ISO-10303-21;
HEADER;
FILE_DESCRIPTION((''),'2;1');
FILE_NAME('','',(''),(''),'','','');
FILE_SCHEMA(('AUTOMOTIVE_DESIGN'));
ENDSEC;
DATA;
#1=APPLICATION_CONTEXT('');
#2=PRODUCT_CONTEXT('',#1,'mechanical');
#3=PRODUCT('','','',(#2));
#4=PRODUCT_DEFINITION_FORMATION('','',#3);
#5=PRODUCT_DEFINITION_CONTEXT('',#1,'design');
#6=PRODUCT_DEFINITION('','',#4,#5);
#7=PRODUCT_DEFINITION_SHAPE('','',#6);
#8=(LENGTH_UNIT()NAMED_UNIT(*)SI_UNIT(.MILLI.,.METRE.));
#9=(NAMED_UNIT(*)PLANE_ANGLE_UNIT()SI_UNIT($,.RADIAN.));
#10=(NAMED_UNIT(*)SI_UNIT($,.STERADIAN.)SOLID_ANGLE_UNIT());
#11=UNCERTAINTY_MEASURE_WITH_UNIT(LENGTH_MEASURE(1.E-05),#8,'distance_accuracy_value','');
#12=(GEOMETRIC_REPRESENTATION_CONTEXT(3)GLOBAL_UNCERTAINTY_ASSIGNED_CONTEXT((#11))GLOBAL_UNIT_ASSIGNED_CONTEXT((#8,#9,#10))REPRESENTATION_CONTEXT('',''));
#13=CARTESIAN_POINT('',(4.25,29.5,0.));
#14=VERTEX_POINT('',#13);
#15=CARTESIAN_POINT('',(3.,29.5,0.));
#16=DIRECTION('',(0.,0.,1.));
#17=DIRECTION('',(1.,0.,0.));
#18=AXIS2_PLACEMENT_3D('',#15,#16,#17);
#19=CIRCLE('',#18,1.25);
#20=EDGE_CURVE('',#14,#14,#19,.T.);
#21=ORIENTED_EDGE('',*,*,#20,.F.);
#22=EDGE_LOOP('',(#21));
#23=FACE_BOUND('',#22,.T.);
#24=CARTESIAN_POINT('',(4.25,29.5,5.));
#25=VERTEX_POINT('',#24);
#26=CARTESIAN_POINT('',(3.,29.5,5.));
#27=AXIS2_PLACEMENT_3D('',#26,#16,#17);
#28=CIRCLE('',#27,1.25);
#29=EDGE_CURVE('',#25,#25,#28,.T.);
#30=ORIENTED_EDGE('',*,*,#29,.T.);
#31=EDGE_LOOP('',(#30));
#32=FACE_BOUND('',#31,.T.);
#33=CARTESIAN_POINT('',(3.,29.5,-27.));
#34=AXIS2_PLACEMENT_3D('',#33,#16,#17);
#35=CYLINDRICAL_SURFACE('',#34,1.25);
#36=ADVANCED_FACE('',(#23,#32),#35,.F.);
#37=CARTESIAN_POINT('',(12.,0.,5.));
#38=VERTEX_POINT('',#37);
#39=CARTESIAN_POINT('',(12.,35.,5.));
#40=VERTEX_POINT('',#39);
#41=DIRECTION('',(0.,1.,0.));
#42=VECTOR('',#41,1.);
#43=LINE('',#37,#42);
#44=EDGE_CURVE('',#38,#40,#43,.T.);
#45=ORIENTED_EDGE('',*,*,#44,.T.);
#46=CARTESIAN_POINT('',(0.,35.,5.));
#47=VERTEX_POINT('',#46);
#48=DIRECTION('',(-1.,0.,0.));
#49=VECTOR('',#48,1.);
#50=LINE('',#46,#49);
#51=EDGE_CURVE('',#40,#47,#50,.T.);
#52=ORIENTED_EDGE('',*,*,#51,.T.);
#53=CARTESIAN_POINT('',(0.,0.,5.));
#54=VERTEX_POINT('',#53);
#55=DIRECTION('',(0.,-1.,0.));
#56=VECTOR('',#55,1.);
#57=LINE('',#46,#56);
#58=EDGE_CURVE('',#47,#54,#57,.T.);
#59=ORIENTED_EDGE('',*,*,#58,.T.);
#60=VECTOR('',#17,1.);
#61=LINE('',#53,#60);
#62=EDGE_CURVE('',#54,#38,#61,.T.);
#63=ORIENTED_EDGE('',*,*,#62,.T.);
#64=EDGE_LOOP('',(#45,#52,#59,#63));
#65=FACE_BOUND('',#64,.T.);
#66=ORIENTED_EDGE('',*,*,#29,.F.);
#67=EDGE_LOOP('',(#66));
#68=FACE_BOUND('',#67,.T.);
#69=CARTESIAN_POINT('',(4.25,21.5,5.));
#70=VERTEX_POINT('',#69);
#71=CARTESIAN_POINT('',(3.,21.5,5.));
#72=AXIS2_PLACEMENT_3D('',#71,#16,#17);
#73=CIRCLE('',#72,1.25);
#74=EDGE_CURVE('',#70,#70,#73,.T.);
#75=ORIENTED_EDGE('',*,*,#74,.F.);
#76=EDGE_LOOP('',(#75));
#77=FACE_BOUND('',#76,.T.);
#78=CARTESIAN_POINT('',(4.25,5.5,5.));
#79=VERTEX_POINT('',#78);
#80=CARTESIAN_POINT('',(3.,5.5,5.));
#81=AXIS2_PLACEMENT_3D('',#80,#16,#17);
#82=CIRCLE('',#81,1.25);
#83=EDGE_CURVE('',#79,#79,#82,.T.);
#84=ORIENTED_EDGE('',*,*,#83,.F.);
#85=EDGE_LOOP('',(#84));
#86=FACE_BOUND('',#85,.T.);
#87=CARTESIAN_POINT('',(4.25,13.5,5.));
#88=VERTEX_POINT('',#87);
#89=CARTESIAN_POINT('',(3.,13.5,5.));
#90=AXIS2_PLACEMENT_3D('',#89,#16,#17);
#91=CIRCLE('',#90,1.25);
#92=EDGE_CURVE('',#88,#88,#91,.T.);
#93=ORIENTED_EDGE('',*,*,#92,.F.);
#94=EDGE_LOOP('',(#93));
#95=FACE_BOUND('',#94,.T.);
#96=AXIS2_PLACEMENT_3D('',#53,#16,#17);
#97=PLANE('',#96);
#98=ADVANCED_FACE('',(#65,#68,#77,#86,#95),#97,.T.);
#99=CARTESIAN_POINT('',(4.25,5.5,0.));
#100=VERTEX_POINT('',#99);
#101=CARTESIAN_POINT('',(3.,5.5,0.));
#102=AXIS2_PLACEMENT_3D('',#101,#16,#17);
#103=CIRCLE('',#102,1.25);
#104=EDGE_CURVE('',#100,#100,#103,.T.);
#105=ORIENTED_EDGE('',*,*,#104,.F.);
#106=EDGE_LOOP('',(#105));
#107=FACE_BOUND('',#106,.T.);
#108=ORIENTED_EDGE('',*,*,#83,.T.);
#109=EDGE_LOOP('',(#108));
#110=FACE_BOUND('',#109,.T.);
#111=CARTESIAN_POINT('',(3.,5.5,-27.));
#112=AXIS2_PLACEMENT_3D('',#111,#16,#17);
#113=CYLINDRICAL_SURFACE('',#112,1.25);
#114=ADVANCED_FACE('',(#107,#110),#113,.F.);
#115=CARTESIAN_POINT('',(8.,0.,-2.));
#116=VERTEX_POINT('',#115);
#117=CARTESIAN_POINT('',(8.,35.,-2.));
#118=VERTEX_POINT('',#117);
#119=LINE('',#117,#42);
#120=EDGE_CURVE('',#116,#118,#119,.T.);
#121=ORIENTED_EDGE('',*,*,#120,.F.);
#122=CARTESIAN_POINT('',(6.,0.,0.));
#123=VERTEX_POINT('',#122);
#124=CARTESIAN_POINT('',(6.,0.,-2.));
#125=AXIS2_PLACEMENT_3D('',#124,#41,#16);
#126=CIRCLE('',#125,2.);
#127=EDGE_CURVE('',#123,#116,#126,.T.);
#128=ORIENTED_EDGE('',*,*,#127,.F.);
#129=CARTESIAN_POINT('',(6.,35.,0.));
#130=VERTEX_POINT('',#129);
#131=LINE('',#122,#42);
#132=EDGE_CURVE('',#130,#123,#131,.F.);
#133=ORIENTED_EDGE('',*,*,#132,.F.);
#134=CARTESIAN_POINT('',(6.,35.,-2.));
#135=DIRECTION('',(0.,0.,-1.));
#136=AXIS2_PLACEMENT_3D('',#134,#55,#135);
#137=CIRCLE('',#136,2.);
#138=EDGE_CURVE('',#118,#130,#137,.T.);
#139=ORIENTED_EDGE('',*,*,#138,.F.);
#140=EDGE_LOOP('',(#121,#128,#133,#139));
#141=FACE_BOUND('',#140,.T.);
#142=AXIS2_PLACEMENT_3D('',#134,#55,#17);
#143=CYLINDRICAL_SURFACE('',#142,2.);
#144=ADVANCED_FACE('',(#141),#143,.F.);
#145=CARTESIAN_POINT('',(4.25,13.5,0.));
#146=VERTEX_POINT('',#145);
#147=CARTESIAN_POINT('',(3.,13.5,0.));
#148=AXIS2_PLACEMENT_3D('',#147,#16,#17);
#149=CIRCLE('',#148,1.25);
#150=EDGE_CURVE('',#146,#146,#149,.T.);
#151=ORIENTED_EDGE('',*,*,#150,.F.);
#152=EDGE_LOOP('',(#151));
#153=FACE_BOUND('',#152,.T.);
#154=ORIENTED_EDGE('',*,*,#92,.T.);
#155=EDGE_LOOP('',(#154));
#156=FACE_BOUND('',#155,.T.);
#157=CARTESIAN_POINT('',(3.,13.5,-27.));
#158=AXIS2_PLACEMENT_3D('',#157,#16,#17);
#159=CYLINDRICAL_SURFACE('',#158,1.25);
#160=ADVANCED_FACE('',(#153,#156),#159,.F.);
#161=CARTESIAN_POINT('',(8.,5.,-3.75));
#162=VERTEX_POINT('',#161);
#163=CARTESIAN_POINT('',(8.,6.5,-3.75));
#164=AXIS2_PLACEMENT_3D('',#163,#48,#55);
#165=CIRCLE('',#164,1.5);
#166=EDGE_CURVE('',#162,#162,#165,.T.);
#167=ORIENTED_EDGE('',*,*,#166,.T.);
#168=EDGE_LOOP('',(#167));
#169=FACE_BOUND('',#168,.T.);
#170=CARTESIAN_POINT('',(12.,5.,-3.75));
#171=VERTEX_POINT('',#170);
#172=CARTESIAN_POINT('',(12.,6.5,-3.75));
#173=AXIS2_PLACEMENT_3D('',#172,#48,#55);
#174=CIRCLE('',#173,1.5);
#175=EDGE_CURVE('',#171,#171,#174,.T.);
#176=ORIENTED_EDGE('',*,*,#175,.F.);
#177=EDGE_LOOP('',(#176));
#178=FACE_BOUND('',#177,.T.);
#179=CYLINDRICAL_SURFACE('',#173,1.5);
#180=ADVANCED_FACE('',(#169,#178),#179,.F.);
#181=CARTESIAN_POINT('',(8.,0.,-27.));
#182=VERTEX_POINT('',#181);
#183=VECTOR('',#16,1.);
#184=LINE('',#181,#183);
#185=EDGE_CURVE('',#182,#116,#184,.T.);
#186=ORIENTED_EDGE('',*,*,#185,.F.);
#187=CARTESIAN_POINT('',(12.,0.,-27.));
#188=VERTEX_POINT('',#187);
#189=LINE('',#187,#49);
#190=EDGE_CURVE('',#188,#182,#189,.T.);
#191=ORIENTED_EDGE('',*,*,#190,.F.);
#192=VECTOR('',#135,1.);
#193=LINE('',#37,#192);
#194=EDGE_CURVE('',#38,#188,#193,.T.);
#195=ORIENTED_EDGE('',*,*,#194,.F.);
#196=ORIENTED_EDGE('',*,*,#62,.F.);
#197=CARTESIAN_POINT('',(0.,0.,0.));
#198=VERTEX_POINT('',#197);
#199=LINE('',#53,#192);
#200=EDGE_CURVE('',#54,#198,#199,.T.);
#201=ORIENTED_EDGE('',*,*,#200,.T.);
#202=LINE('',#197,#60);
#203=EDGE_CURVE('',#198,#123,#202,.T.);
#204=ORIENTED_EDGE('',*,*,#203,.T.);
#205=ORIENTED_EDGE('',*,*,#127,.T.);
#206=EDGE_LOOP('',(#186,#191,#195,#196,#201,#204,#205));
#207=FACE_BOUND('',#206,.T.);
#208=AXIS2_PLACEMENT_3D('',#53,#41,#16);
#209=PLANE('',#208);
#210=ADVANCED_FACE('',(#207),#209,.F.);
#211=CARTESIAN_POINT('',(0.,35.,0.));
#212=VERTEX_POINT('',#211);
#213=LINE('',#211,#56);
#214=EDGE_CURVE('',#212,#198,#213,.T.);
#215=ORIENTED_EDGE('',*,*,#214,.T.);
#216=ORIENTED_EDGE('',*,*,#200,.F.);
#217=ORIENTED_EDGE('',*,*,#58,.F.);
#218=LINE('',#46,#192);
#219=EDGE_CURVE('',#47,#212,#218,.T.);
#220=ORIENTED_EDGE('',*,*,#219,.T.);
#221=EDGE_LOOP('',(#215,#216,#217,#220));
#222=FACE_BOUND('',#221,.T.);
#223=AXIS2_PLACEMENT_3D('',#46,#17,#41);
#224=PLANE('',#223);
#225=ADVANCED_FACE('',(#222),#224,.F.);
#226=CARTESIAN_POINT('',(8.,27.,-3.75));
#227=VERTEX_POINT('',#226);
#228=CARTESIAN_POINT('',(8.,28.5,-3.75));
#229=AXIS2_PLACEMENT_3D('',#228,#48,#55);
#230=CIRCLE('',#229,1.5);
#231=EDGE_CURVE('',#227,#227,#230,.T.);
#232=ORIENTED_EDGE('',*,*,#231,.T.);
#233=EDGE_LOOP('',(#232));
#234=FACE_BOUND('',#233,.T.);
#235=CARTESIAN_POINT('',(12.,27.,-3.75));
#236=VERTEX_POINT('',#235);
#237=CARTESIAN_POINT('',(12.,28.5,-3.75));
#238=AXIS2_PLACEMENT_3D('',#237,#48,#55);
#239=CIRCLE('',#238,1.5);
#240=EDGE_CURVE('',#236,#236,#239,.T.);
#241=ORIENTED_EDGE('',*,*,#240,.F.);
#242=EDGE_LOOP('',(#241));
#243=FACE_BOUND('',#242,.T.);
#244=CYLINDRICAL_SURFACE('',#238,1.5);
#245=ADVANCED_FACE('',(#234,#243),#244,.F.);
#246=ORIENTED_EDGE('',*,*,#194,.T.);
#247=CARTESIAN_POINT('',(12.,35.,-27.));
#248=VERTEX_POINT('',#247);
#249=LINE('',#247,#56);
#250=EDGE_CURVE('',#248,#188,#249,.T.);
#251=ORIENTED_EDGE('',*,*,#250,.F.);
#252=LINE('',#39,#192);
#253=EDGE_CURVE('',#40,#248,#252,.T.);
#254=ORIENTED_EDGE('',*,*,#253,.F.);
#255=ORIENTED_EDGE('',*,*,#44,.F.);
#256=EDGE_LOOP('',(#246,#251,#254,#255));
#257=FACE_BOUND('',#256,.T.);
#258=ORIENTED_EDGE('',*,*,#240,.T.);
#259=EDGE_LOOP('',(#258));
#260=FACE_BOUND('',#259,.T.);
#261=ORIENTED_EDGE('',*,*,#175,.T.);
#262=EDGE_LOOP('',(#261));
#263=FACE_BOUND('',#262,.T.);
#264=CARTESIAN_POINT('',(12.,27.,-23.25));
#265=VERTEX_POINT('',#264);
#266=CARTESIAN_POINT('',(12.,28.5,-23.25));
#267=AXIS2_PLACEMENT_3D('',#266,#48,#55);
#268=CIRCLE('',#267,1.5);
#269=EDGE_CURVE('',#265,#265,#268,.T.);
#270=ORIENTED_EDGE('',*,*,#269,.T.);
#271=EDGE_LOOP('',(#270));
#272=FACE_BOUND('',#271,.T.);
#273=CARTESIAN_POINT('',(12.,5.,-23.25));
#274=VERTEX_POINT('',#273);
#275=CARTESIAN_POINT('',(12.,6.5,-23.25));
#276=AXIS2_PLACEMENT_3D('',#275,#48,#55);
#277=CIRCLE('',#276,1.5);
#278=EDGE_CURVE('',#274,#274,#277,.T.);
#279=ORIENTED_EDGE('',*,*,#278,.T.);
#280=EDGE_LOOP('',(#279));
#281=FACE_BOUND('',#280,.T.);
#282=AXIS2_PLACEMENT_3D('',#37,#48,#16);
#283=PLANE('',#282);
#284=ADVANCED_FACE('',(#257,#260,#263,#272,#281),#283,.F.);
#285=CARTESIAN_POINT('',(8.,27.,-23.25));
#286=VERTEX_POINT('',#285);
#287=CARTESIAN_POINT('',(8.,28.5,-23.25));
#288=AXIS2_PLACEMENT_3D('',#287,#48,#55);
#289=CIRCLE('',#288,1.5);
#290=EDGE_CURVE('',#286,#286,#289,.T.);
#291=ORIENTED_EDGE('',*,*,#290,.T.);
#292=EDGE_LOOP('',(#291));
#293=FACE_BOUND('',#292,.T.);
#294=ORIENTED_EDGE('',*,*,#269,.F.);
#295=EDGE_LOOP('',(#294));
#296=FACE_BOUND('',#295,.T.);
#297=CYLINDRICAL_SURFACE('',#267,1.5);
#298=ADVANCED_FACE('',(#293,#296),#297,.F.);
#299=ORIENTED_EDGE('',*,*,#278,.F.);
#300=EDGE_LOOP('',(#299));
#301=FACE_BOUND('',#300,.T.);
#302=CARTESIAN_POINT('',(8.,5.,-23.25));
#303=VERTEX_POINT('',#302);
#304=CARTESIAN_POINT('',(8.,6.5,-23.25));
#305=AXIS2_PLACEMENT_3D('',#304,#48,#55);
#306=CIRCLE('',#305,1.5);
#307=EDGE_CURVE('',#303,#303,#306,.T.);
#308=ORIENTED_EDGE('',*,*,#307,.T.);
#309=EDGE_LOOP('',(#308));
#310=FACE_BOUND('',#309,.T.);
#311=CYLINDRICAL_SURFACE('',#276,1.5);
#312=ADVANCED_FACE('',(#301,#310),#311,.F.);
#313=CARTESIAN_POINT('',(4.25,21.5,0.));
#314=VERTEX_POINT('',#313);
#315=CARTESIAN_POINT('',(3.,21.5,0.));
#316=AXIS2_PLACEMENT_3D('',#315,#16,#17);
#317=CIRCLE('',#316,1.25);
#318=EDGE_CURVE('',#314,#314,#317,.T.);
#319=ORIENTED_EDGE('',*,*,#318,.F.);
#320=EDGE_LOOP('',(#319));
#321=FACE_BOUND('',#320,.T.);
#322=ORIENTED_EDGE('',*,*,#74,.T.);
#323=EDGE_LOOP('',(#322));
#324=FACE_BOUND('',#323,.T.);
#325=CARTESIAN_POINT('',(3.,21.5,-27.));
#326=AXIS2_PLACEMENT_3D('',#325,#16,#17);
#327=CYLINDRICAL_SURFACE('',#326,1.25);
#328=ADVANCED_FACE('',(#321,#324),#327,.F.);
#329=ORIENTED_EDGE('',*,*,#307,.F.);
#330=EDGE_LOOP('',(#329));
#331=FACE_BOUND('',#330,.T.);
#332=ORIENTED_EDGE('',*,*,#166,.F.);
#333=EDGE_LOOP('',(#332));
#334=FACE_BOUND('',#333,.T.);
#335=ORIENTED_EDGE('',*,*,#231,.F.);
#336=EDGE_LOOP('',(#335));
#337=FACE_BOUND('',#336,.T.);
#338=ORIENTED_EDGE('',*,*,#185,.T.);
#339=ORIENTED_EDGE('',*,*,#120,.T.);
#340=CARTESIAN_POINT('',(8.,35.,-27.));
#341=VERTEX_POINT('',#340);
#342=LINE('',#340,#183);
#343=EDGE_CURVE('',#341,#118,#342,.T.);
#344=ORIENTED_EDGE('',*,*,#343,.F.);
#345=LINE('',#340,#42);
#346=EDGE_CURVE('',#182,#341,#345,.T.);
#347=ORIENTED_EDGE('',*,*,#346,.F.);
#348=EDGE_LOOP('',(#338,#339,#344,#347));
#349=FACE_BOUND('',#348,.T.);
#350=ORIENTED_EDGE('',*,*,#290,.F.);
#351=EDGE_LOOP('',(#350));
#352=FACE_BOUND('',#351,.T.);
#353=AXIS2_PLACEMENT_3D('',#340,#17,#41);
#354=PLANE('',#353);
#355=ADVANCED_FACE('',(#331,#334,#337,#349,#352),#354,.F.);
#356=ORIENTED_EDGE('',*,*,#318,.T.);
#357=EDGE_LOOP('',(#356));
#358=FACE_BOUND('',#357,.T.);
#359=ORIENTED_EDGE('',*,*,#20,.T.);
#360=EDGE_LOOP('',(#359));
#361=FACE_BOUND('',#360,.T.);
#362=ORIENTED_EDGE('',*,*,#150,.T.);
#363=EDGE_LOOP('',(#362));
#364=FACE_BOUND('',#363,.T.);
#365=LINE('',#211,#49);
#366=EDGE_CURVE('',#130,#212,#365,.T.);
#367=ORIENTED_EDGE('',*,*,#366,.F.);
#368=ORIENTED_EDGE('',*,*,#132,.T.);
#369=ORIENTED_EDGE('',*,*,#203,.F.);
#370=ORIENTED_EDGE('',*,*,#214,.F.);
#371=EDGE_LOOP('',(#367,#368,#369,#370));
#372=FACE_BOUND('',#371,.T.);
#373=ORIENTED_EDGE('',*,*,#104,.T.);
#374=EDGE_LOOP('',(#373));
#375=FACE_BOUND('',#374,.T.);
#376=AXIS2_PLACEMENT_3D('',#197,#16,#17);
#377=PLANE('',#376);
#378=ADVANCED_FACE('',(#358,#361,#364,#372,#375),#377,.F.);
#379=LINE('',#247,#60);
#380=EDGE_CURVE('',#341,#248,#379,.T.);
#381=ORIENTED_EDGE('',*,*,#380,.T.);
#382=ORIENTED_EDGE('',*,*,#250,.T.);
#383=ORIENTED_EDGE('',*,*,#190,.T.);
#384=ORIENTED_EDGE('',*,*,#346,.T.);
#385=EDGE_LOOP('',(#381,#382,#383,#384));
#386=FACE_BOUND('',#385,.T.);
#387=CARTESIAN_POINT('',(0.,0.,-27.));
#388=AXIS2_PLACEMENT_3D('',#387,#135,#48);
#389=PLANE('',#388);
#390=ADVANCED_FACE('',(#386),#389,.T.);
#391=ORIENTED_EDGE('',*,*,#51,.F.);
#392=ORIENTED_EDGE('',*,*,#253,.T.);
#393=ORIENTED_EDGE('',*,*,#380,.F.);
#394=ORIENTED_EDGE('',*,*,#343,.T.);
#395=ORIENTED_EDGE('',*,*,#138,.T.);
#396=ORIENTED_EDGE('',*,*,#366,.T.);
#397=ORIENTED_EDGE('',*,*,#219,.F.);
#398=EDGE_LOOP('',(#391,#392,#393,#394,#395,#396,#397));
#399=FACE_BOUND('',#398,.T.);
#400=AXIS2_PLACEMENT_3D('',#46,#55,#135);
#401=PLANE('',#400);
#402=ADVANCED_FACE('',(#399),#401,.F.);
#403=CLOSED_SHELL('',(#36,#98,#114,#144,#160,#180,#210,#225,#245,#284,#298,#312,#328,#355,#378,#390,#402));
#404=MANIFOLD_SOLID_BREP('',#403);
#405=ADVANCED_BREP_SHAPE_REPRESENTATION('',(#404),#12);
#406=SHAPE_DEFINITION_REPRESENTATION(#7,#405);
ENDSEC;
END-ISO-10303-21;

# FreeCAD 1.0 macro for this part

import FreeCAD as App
import Part
import Sketcher


def edges_at(feature, points):
    """Names of the edges that pass closest to the given points."""
    edges = feature.Shape.Edges
    near = lambda p: min(range(len(edges)), key=lambda i: edges[i].distToShape(Part.Vertex(*p))[0])
    return sorted({f"Edge{near(p) + 1}" for p in points})

doc = App.newDocument("Part")
body = doc.addObject("PartDesign::Body", "Body")

# Sketch on XY plane
sketch1 = body.newObject("Sketcher::SketchObject", "Sketch")
sketch1.AttachmentSupport = (doc.getObject("XY_Plane"), [""])
sketch1.MapMode = "FlatFace"
sketch1.addGeometry(Part.LineSegment(App.Vector(0, 35, 0), App.Vector(0, 0, 0)), False)
sketch1.addGeometry(Part.LineSegment(App.Vector(0, 0, 0), App.Vector(12, 0, 0)), False)
sketch1.addGeometry(Part.LineSegment(App.Vector(12, 0, 0), App.Vector(12, 35, 0)), False)
sketch1.addGeometry(Part.LineSegment(App.Vector(12, 35, 0), App.Vector(0, 35, 0)), False)
sketch1.addConstraint(Sketcher.Constraint("Coincident", 0, 2, 1, 1))
sketch1.addConstraint(Sketcher.Constraint("Coincident", 1, 2, 2, 1))
sketch1.addConstraint(Sketcher.Constraint("Coincident", 2, 2, 3, 1))
sketch1.addConstraint(Sketcher.Constraint("Coincident", 3, 2, 0, 1))
sketch1.addConstraint(Sketcher.Constraint("Vertical", 0))
sketch1.addConstraint(Sketcher.Constraint("Horizontal", 1))
sketch1.addConstraint(Sketcher.Constraint("Vertical", 2))
sketch1.addConstraint(Sketcher.Constraint("Horizontal", 3))
sketch1.addConstraint(Sketcher.Constraint("Coincident", 0, 2, -1, 1))
sketch1.addConstraint(Sketcher.Constraint("DistanceX", 1, 1, 1, 2, 12.0))
sketch1.addConstraint(Sketcher.Constraint("DistanceY", 0, 2, 0, 1, 35.0))
pad1 = body.newObject("PartDesign::Pad", "Pad")
pad1.Profile = sketch1
pad1.Length = 5

# Sketch on XY plane
sketch2 = body.newObject("Sketcher::SketchObject", "Sketch001")
sketch2.AttachmentSupport = (doc.getObject("XY_Plane"), [""])
sketch2.MapMode = "FlatFace"
sketch2.addGeometry(Part.LineSegment(App.Vector(12, 35, 0), App.Vector(12, 0, 0)), False)
sketch2.addGeometry(Part.LineSegment(App.Vector(12, 0, 0), App.Vector(8, 0, 0)), False)
sketch2.addGeometry(Part.LineSegment(App.Vector(8, 0, 0), App.Vector(8, 35, 0)), False)
sketch2.addGeometry(Part.LineSegment(App.Vector(8, 35, 0), App.Vector(12, 35, 0)), False)
sketch2.addConstraint(Sketcher.Constraint("Coincident", 0, 2, 1, 1))
sketch2.addConstraint(Sketcher.Constraint("Coincident", 1, 2, 2, 1))
sketch2.addConstraint(Sketcher.Constraint("Coincident", 2, 2, 3, 1))
sketch2.addConstraint(Sketcher.Constraint("Coincident", 3, 2, 0, 1))
sketch2.addConstraint(Sketcher.Constraint("Vertical", 0))
sketch2.addConstraint(Sketcher.Constraint("Horizontal", 1))
sketch2.addConstraint(Sketcher.Constraint("Vertical", 2))
sketch2.addConstraint(Sketcher.Constraint("Horizontal", 3))
sketch2.addConstraint(Sketcher.Constraint("PointOnObject", 0, 2, -1))
sketch2.addConstraint(Sketcher.Constraint("DistanceX", 1, 2, 1, 1, 4.0))
sketch2.addConstraint(Sketcher.Constraint("DistanceY", 0, 2, 0, 1, 35.0))
sketch2.addConstraint(Sketcher.Constraint("DistanceX", -1, 1, 0, 2, 12.0))
pad2 = body.newObject("PartDesign::Pad", "Pad001")
pad2.Profile = sketch2
pad2.Length = 27
pad2.Reversed = True

# Sketch on XY plane
sketch3 = body.newObject("Sketcher::SketchObject", "Sketch002")
sketch3.AttachmentSupport = (doc.getObject("XY_Plane"), [""])
sketch3.MapMode = "FlatFace"
sketch3.AttachmentOffset = App.Placement(App.Vector(0, 0, 5), App.Rotation())
sketch3.addGeometry(Part.Circle(App.Vector(3, 5.5, 0), App.Vector(0, 0, 1), 1.25), False)
sketch3.addGeometry(Part.Circle(App.Vector(3, 13.5, 0), App.Vector(0, 0, 1), 1.25), False)
sketch3.addGeometry(Part.Circle(App.Vector(3, 21.5, 0), App.Vector(0, 0, 1), 1.25), False)
sketch3.addGeometry(Part.Circle(App.Vector(3, 29.5, 0), App.Vector(0, 0, 1), 1.25), False)
sketch3.addConstraint(Sketcher.Constraint("Equal", 0, 1))
sketch3.addConstraint(Sketcher.Constraint("Equal", 1, 2))
sketch3.addConstraint(Sketcher.Constraint("Equal", 2, 3))
sketch3.addConstraint(Sketcher.Constraint("Vertical", 0, 3, 1, 3))
sketch3.addConstraint(Sketcher.Constraint("Vertical", 1, 3, 2, 3))
sketch3.addConstraint(Sketcher.Constraint("Vertical", 2, 3, 3, 3))
sketch3.addConstraint(Sketcher.Constraint("Diameter", 0, 2.5))
sketch3.addConstraint(Sketcher.Constraint("DistanceX", -1, 1, 0, 3, 3.0))
sketch3.addConstraint(Sketcher.Constraint("DistanceY", 0, 3, 1, 3, 8.0))
sketch3.addConstraint(Sketcher.Constraint("DistanceY", 1, 3, 2, 3, 8.0))
sketch3.addConstraint(Sketcher.Constraint("DistanceY", 2, 3, 3, 3, 8.0))
sketch3.addConstraint(Sketcher.Constraint("DistanceY", -1, 1, 0, 3, 5.5))
pocket1 = body.newObject("PartDesign::Pocket", "Pocket")
pocket1.Profile = sketch3
pocket1.Type = "ThroughAll"

# Sketch on YZ plane
sketch4 = body.newObject("Sketcher::SketchObject", "Sketch003")
sketch4.AttachmentSupport = (doc.getObject("YZ_Plane"), [""])
sketch4.MapMode = "FlatFace"
sketch4.AttachmentOffset = App.Placement(App.Vector(0, 0, 8), App.Rotation())
sketch4.addGeometry(Part.Circle(App.Vector(28.5, -23.25, 0), App.Vector(0, 0, 1), 1.5), False)
sketch4.addGeometry(Part.Circle(App.Vector(28.5, -3.75, 0), App.Vector(0, 0, 1), 1.5), False)
sketch4.addGeometry(Part.Circle(App.Vector(6.5, -23.25, 0), App.Vector(0, 0, 1), 1.5), False)
sketch4.addGeometry(Part.Circle(App.Vector(6.5, -3.75, 0), App.Vector(0, 0, 1), 1.5), False)
sketch4.addConstraint(Sketcher.Constraint("Equal", 0, 1))
sketch4.addConstraint(Sketcher.Constraint("Equal", 1, 2))
sketch4.addConstraint(Sketcher.Constraint("Equal", 2, 3))
sketch4.addConstraint(Sketcher.Constraint("Horizontal", 0, 3, 2, 3))
sketch4.addConstraint(Sketcher.Constraint("Horizontal", 1, 3, 3, 3))
sketch4.addConstraint(Sketcher.Constraint("Vertical", 0, 3, 1, 3))
sketch4.addConstraint(Sketcher.Constraint("Vertical", 2, 3, 3, 3))
sketch4.addConstraint(Sketcher.Constraint("Diameter", 0, 3.0))
sketch4.addConstraint(Sketcher.Constraint("DistanceX", 2, 3, 0, 3, 22.0))
sketch4.addConstraint(Sketcher.Constraint("DistanceX", -1, 1, 0, 3, 28.5))
sketch4.addConstraint(Sketcher.Constraint("DistanceY", 0, 3, 1, 3, 19.5))
sketch4.addConstraint(Sketcher.Constraint("DistanceY", 0, 3, -1, 1, 23.25))
pocket2 = body.newObject("PartDesign::Pocket", "Pocket001")
pocket2.Profile = sketch4
pocket2.Type = "ThroughAll"
pocket2.Reversed = True
doc.recompute()

fillet = body.newObject("PartDesign::Fillet", "Fillet")
fillet.Base = (pocket2, edges_at(pocket2, [(8, 17.5, 0)]))
fillet.Radius = 2

doc.recompute()
